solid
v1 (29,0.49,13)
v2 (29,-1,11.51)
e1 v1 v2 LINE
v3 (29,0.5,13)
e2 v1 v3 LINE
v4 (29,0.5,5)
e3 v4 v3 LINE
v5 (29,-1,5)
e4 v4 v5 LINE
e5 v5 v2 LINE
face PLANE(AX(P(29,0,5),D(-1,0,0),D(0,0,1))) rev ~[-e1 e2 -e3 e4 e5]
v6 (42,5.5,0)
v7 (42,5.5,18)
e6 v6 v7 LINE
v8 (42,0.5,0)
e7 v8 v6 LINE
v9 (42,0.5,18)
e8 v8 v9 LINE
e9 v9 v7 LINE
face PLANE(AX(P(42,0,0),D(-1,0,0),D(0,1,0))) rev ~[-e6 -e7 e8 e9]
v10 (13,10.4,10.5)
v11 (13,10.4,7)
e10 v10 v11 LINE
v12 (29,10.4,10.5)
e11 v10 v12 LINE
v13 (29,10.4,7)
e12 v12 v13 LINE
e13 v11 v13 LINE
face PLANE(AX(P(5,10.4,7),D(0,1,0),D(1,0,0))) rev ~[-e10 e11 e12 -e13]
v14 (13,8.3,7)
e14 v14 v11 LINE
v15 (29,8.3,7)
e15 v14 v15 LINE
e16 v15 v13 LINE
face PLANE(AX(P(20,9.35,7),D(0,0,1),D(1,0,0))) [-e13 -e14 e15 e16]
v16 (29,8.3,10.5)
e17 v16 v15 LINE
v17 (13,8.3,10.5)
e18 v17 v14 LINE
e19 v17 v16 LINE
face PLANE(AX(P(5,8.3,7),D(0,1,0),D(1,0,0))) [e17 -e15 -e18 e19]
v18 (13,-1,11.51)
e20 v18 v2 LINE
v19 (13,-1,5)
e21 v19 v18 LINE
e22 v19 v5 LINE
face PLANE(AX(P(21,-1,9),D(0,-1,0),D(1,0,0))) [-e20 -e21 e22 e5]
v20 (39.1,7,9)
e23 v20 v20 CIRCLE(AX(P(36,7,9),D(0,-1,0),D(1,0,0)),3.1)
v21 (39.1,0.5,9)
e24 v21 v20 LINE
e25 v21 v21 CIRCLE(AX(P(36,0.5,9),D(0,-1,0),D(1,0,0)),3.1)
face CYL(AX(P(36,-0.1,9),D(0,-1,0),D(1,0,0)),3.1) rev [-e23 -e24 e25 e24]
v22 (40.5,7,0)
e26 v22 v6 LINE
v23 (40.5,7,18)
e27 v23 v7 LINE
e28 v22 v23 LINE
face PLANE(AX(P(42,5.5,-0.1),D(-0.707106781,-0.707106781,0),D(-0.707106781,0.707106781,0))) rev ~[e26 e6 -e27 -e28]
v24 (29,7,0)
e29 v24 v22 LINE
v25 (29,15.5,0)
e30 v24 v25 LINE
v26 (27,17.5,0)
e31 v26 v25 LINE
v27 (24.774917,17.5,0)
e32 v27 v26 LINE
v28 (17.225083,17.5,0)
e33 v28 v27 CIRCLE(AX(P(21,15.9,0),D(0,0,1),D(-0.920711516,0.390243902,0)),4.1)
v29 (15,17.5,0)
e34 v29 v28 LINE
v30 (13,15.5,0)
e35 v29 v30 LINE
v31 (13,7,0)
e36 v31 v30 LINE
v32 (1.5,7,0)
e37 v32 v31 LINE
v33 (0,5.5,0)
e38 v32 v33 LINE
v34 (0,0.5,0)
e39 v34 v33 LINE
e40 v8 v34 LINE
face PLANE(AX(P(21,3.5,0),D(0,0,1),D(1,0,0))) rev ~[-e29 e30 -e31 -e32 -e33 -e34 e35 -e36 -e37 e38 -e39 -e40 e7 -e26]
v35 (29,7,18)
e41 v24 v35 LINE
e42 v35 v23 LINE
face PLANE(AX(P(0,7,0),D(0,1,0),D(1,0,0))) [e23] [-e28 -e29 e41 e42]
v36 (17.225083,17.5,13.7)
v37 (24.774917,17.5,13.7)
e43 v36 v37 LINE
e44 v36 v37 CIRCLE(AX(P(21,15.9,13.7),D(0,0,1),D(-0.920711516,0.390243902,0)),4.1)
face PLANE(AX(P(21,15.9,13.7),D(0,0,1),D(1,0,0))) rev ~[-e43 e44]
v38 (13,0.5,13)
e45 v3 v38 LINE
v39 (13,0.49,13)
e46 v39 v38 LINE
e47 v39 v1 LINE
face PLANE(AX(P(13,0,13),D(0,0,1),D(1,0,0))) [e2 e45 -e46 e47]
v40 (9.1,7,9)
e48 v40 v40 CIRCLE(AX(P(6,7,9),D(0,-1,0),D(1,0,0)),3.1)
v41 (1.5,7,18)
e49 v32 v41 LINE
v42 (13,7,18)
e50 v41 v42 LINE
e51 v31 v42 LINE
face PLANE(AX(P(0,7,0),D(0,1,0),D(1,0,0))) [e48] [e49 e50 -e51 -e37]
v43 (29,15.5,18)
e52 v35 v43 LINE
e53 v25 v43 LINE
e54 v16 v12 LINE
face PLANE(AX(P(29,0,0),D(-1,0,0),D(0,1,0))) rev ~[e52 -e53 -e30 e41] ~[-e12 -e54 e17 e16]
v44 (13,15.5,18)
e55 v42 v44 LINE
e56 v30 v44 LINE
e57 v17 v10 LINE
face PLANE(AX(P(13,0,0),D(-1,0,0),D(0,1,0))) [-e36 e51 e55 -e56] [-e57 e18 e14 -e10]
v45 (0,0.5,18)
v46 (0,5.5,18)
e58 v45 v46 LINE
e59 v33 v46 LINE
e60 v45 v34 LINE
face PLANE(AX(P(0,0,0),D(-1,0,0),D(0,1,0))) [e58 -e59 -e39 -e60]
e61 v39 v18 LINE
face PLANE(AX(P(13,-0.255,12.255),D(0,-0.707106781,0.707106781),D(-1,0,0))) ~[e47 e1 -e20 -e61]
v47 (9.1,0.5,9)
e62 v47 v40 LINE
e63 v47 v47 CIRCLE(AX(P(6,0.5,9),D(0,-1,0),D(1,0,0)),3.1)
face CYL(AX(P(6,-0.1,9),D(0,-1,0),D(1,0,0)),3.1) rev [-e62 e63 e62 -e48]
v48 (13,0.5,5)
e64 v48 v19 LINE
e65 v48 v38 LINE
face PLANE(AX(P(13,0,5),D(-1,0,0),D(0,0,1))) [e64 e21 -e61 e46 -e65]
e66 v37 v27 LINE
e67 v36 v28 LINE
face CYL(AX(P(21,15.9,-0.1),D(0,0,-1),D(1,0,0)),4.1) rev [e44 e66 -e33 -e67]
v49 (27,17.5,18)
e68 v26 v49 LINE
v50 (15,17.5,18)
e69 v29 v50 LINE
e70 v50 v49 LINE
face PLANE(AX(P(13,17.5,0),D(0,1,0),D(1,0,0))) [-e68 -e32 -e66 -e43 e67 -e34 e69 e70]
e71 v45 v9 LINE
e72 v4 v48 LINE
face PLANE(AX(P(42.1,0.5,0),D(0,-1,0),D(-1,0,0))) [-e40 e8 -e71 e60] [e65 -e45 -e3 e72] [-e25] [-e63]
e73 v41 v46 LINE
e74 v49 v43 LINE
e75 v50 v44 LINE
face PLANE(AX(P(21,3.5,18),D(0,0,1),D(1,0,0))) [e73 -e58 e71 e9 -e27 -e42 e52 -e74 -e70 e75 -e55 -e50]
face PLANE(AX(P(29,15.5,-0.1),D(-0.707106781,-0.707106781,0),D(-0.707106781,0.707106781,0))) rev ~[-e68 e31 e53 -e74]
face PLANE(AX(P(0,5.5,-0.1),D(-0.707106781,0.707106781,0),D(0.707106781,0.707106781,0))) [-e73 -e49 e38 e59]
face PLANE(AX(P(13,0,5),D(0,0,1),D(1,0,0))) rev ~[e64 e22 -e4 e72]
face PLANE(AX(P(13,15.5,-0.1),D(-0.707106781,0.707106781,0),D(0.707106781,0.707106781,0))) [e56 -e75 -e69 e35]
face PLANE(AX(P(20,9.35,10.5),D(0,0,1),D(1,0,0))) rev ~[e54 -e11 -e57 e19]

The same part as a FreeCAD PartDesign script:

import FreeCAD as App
import Part
import Sketcher

V = App.Vector
Q = App.Units.Quantity


def edges_at(feature, points):
    """Names of the edges that pass closest to the given points."""
    edges = feature.Shape.Edges
    near = lambda p: min(range(len(edges)), key=lambda i: edges[i].distToShape(Part.Vertex(*p))[0])
    return sorted({f"Edge{near(p) + 1}" for p in points})

doc = App.newDocument("Part")
body = doc.addObject("PartDesign::Body", "Body")

sketch1 = doc.addObject("Sketcher::SketchObject", "Sketch")
body.addObject(sketch1)
sketch1.AttachmentSupport = (doc.XY_Plane, [""])
sketch1.MapMode = "FlatFace"
sketch1.addGeometry([
    Part.LineSegment(V(42.1, -1.5, 0), V(42.1, 0.5, 0)),
    Part.LineSegment(V(42.1, 0.5, 0), V(-7.9, 0.5, 0)),
    Part.LineSegment(V(-7.9, 0.5, 0), V(-7.9, -1.5, 0)),
    Part.LineSegment(V(-7.9, -1.5, 0), V(42.1, -1.5, 0)),
], False)
sketch1.addConstraint([
    Sketcher.Constraint("Coincident", 0, 2, 1, 1),
    Sketcher.Constraint("Coincident", 1, 2, 2, 1),
    Sketcher.Constraint("Coincident", 2, 2, 3, 1),
    Sketcher.Constraint("Coincident", 3, 2, 0, 1),
    Sketcher.Constraint("Vertical", 0),
    Sketcher.Constraint("Horizontal", 1),
    Sketcher.Constraint("Vertical", 2),
    Sketcher.Constraint("Horizontal", 3),
    Sketcher.Constraint("DistanceX", 1, 2, 1, 1, Q("50 mm")),
    Sketcher.Constraint("DistanceY", 0, 1, 0, 2, Q("2 mm")),
    Sketcher.Constraint("DistanceX", -1, 1, 0, 2, Q("42.1 mm")),
    Sketcher.Constraint("DistanceY", -1, 1, 0, 2, Q("0.5 mm")),
])
pad1 = doc.addObject("PartDesign::Pad", "Pad")
body.addObject(pad1)
pad1.Profile = sketch1
pad1.Length = 5
body2 = doc.addObject("PartDesign::Body", "Body001")

sketch2 = doc.addObject("Sketcher::SketchObject", "Sketch001")
body2.addObject(sketch2)
sketch2.AttachmentSupport = (doc.getObject("XY_Plane001"), [""])
sketch2.MapMode = "FlatFace"
sketch2.AttachmentOffset = App.Placement(V(0, 0, -0.1), App.Rotation())
sketch2.addGeometry(Part.Circle(V(21, 15.9, 0), V(0, 0, 1), 4.1), False)
sketch2.addConstraint([
    Sketcher.Constraint("Diameter", 0, Q("8.2 mm")),
    Sketcher.Constraint("DistanceX", -1, 1, 0, 3, Q("21 mm")),
    Sketcher.Constraint("DistanceY", -1, 1, 0, 3, Q("15.9 mm")),
])
pad2 = doc.addObject("PartDesign::Pad", "Pad001")
body2.addObject(pad2)
pad2.Profile = sketch2
pad2.Length = 13.8
body3 = doc.addObject("PartDesign::Body", "Body002")

sketch3 = doc.addObject("Sketcher::SketchObject", "Sketch002")
body3.addObject(sketch3)
sketch3.AttachmentSupport = (doc.getObject("XY_Plane002"), [""])
sketch3.MapMode = "FlatFace"
sketch3.addGeometry([
    Part.LineSegment(V(0, 10, 0), V(0, 0, 0)),
    Part.LineSegment(V(0, 0, 0), V(10, 0, 0)),
    Part.LineSegment(V(10, 0, 0), V(10, 10, 0)),
    Part.LineSegment(V(10, 10, 0), V(0, 10, 0)),
], False)
sketch3.addConstraint([
    Sketcher.Constraint("Coincident", 0, 2, 1, 1),
    Sketcher.Constraint("Coincident", 1, 2, 2, 1),
    Sketcher.Constraint("Coincident", 2, 2, 3, 1),
    Sketcher.Constraint("Coincident", 3, 2, 0, 1),
    Sketcher.Constraint("Vertical", 0),
    Sketcher.Constraint("Horizontal", 1),
    Sketcher.Constraint("Vertical", 2),
    Sketcher.Constraint("Horizontal", 3),
    Sketcher.Constraint("Coincident", 0, 2, -1, 1),
    Sketcher.Constraint("Equal", 3, 0),
    Sketcher.Constraint("DistanceX", 1, 1, 1, 2, Q("10 mm")),
])
pad3 = doc.addObject("PartDesign::Pad", "Pad002")
body3.addObject(pad3)
pad3.Profile = sketch3
pad3.Length = 20
body4 = doc.addObject("PartDesign::Body", "Body003")
doc.recompute()

body3.Placement = App.Placement(V(13, 15.5, -0.1), App.Rotation(V(0, 0, 1), 45))
boolean = doc.addObject("PartDesign::Boolean", "Boolean")
body4.addObject(boolean)
boolean.Type = "Fuse"
boolean.addObjects([body3])
body5 = doc.addObject("PartDesign::Body", "Body004")

sketch4 = doc.addObject("Sketcher::SketchObject", "Sketch003")
body5.addObject(sketch4)
sketch4.AttachmentSupport = (doc.getObject("XY_Plane004"), [""])
sketch4.MapMode = "FlatFace"
sketch4.addGeometry([
    Part.LineSegment(V(0, 10, 0), V(0, 0, 0)),
    Part.LineSegment(V(0, 0, 0), V(10, 0, 0)),
    Part.LineSegment(V(10, 0, 0), V(10, 10, 0)),
    Part.LineSegment(V(10, 10, 0), V(0, 10, 0)),
], False)
sketch4.addConstraint([
    Sketcher.Constraint("Coincident", 0, 2, 1, 1),
    Sketcher.Constraint("Coincident", 1, 2, 2, 1),
    Sketcher.Constraint("Coincident", 2, 2, 3, 1),
    Sketcher.Constraint("Coincident", 3, 2, 0, 1),
    Sketcher.Constraint("Vertical", 0),
    Sketcher.Constraint("Horizontal", 1),
    Sketcher.Constraint("Vertical", 2),
    Sketcher.Constraint("Horizontal", 3),
    Sketcher.Constraint("Coincident", 0, 2, -1, 1),
    Sketcher.Constraint("Equal", 3, 0),
    Sketcher.Constraint("DistanceX", 1, 1, 1, 2, Q("10 mm")),
])
pad4 = doc.addObject("PartDesign::Pad", "Pad003")
body5.addObject(pad4)
pad4.Profile = sketch4
pad4.Length = 20
body6 = doc.addObject("PartDesign::Body", "Body005")
doc.recompute()

body5.Placement = App.Placement(V(29, 15.5, -0.1), App.Rotation(V(0, 0, 1), 45))
boolean2 = doc.addObject("PartDesign::Boolean", "Boolean001")
body6.addObject(boolean2)
boolean2.Type = "Fuse"
boolean2.addObjects([body5])
body7 = doc.addObject("PartDesign::Body", "Body006")

sketch5 = doc.addObject("Sketcher::SketchObject", "Sketch004")
body7.addObject(sketch5)
sketch5.AttachmentSupport = (doc.getObject("XY_Plane006"), [""])
sketch5.MapMode = "FlatFace"
sketch5.addGeometry([
    Part.LineSegment(V(0, 10, 0), V(0, 0, 0)),
    Part.LineSegment(V(0, 0, 0), V(10, 0, 0)),
    Part.LineSegment(V(10, 0, 0), V(10, 10, 0)),
    Part.LineSegment(V(10, 10, 0), V(0, 10, 0)),
], False)
sketch5.addConstraint([
    Sketcher.Constraint("Coincident", 0, 2, 1, 1),
    Sketcher.Constraint("Coincident", 1, 2, 2, 1),
    Sketcher.Constraint("Coincident", 2, 2, 3, 1),
    Sketcher.Constraint("Coincident", 3, 2, 0, 1),
    Sketcher.Constraint("Vertical", 0),
    Sketcher.Constraint("Horizontal", 1),
    Sketcher.Constraint("Vertical", 2),
    Sketcher.Constraint("Horizontal", 3),
    Sketcher.Constraint("Coincident", 0, 2, -1, 1),
    Sketcher.Constraint("Equal", 3, 0),
    Sketcher.Constraint("DistanceX", 1, 1, 1, 2, Q("10 mm")),
])
pad5 = doc.addObject("PartDesign::Pad", "Pad004")
body7.addObject(pad5)
pad5.Profile = sketch5
pad5.Length = 20
body8 = doc.addObject("PartDesign::Body", "Body007")
doc.recompute()

body7.Placement = App.Placement(V(0, 5.5, -0.1), App.Rotation(V(0, 0, 1), 45))
boolean3 = doc.addObject("PartDesign::Boolean", "Boolean002")
body8.addObject(boolean3)
boolean3.Type = "Fuse"
boolean3.addObjects([body7])
body9 = doc.addObject("PartDesign::Body", "Body008")

sketch6 = doc.addObject("Sketcher::SketchObject", "Sketch005")
body9.addObject(sketch6)
sketch6.AttachmentSupport = (doc.getObject("XY_Plane008"), [""])
sketch6.MapMode = "FlatFace"
sketch6.addGeometry([
    Part.LineSegment(V(0, 10, 0), V(0, 0, 0)),
    Part.LineSegment(V(0, 0, 0), V(10, 0, 0)),
    Part.LineSegment(V(10, 0, 0), V(10, 10, 0)),
    Part.LineSegment(V(10, 10, 0), V(0, 10, 0)),
], False)
sketch6.addConstraint([
    Sketcher.Constraint("Coincident", 0, 2, 1, 1),
    Sketcher.Constraint("Coincident", 1, 2, 2, 1),
    Sketcher.Constraint("Coincident", 2, 2, 3, 1),
    Sketcher.Constraint("Coincident", 3, 2, 0, 1),
    Sketcher.Constraint("Vertical", 0),
    Sketcher.Constraint("Horizontal", 1),
    Sketcher.Constraint("Vertical", 2),
    Sketcher.Constraint("Horizontal", 3),
    Sketcher.Constraint("Coincident", 0, 2, -1, 1),
    Sketcher.Constraint("Equal", 3, 0),
    Sketcher.Constraint("DistanceX", 1, 1, 1, 2, Q("10 mm")),
])
pad6 = doc.addObject("PartDesign::Pad", "Pad005")
body9.addObject(pad6)
pad6.Profile = sketch6
pad6.Length = 20
body10 = doc.addObject("PartDesign::Body", "Body009")
doc.recompute()

body9.Placement = App.Placement(V(42, 5.5, -0.1), App.Rotation(V(0, 0, 1), 45))
boolean4 = doc.addObject("PartDesign::Boolean", "Boolean003")
body10.addObject(boolean4)
boolean4.Type = "Fuse"
boolean4.addObjects([body9])
body11 = doc.addObject("PartDesign::Body", "Body010")

sketch7 = doc.addObject("Sketcher::SketchObject", "Sketch006")
body11.addObject(sketch7)
sketch7.AttachmentSupport = (doc.getObject("XZ_Plane010"), [""])
sketch7.MapMode = "FlatFace"
sketch7.AttachmentOffset = App.Placement(V(0, 0, 0.1), App.Rotation())
sketch7.addGeometry(Part.Circle(V(6, 9, 0), V(0, 0, 1), 3.1), False)
sketch7.addConstraint([
    Sketcher.Constraint("Diameter", 0, Q("6.2 mm")),
    Sketcher.Constraint("DistanceX", -1, 1, 0, 3, Q("6 mm")),
    Sketcher.Constraint("DistanceY", -1, 1, 0, 3, Q("9 mm")),
])
pad7 = doc.addObject("PartDesign::Pad", "Pad006")
body11.addObject(pad7)
pad7.Profile = sketch7
pad7.Length = 10
pad7.Reversed = True
body12 = doc.addObject("PartDesign::Body", "Body011")

sketch8 = doc.addObject("Sketcher::SketchObject", "Sketch007")
body12.addObject(sketch8)
sketch8.AttachmentSupport = (doc.getObject("XZ_Plane011"), [""])
sketch8.MapMode = "FlatFace"
sketch8.AttachmentOffset = App.Placement(V(0, 0, 0.1), App.Rotation())
sketch8.addGeometry(Part.Circle(V(36, 9, 0), V(0, 0, 1), 3.1), False)
sketch8.addConstraint([
    Sketcher.Constraint("Diameter", 0, Q("6.2 mm")),
    Sketcher.Constraint("DistanceX", -1, 1, 0, 3, Q("36 mm")),
    Sketcher.Constraint("DistanceY", -1, 1, 0, 3, Q("9 mm")),
])
pad8 = doc.addObject("PartDesign::Pad", "Pad007")
body12.addObject(pad8)
pad8.Profile = sketch8
pad8.Length = 10
pad8.Reversed = True
body13 = doc.addObject("PartDesign::Body", "Body012")

sketch9 = doc.addObject("Sketcher::SketchObject", "Sketch008")
body13.addObject(sketch9)
sketch9.AttachmentSupport = (doc.getObject("XY_Plane012"), [""])
sketch9.MapMode = "FlatFace"
sketch9.AttachmentOffset = App.Placement(V(0, 0, 7), App.Rotation())
sketch9.addGeometry([
    Part.LineSegment(V(5, 10.4, 0), V(5, 8.3, 0)),
    Part.LineSegment(V(5, 8.3, 0), V(35, 8.3, 0)),
    Part.LineSegment(V(35, 8.3, 0), V(35, 10.4, 0)),
    Part.LineSegment(V(35, 10.4, 0), V(5, 10.4, 0)),
], False)
sketch9.addConstraint([
    Sketcher.Constraint("Coincident", 0, 2, 1, 1),
    Sketcher.Constraint("Coincident", 1, 2, 2, 1),
    Sketcher.Constraint("Coincident", 2, 2, 3, 1),
    Sketcher.Constraint("Coincident", 3, 2, 0, 1),
    Sketcher.Constraint("Vertical", 0),
    Sketcher.Constraint("Horizontal", 1),
    Sketcher.Constraint("Vertical", 2),
    Sketcher.Constraint("Horizontal", 3),
    Sketcher.Constraint("DistanceX", 1, 1, 1, 2, Q("30 mm")),
    Sketcher.Constraint("DistanceY", 0, 2, 0, 1, Q("2.1 mm")),
    Sketcher.Constraint("DistanceX", -1, 1, 0, 2, Q("5 mm")),
    Sketcher.Constraint("DistanceY", -1, 1, 0, 2, Q("8.3 mm")),
])
pad9 = doc.addObject("PartDesign::Pad", "Pad008")
body13.addObject(pad9)
pad9.Profile = sketch9
pad9.Length = 3.5
body14 = doc.addObject("PartDesign::Body", "Body013")
body14.AllowCompound = True

sketch10 = doc.addObject("Sketcher::SketchObject", "Sketch009")
body14.addObject(sketch10)
sketch10.AttachmentSupport = (doc.getObject("XY_Plane013"), [""])
sketch10.MapMode = "FlatFace"
sketch10.AttachmentOffset = App.Placement(V(0, 0, 13), App.Rotation())
sketch10.addGeometry([
    Part.LineSegment(V(42.1, -1.5, 0), V(42.1, 0.5, 0)),
    Part.LineSegment(V(42.1, 0.5, 0), V(-7.9, 0.5, 0)),
    Part.LineSegment(V(-7.9, 0.5, 0), V(-7.9, -1.5, 0)),
    Part.LineSegment(V(-7.9, -1.5, 0), V(42.1, -1.5, 0)),
], False)
sketch10.addConstraint([
    Sketcher.Constraint("Coincident", 0, 2, 1, 1),
    Sketcher.Constraint("Coincident", 1, 2, 2, 1),
    Sketcher.Constraint("Coincident", 2, 2, 3, 1),
    Sketcher.Constraint("Coincident", 3, 2, 0, 1),
    Sketcher.Constraint("Vertical", 0),
    Sketcher.Constraint("Horizontal", 1),
    Sketcher.Constraint("Vertical", 2),
    Sketcher.Constraint("Horizontal", 3),
    Sketcher.Constraint("DistanceX", 1, 2, 1, 1, Q("50 mm")),
    Sketcher.Constraint("DistanceY", 0, 1, 0, 2, Q("2 mm")),
    Sketcher.Constraint("DistanceX", -1, 1, 0, 2, Q("42.1 mm")),
    Sketcher.Constraint("DistanceY", -1, 1, 0, 2, Q("0.5 mm")),
])
pad10 = doc.addObject("PartDesign::Pad", "Pad009")
body14.addObject(pad10)
pad10.Profile = sketch10
pad10.Length = 10
doc.recompute()

boolean5 = doc.addObject("PartDesign::Boolean", "Boolean004")
body14.addObject(boolean5)
boolean5.Type = "Fuse"
boolean5.addObjects([body])
doc.recompute()

boolean6 = doc.addObject("PartDesign::Boolean", "Boolean005")
body14.addObject(boolean6)
boolean6.Type = "Fuse"
boolean6.addObjects([body2])
doc.recompute()

boolean7 = doc.addObject("PartDesign::Boolean", "Boolean006")
body14.addObject(boolean7)
boolean7.Type = "Fuse"
boolean7.addObjects([body4])
doc.recompute()

boolean8 = doc.addObject("PartDesign::Boolean", "Boolean007")
body14.addObject(boolean8)
boolean8.Type = "Fuse"
boolean8.addObjects([body6])
doc.recompute()

boolean9 = doc.addObject("PartDesign::Boolean", "Boolean008")
body14.addObject(boolean9)
boolean9.Type = "Fuse"
boolean9.addObjects([body8])
doc.recompute()

boolean10 = doc.addObject("PartDesign::Boolean", "Boolean009")
body14.addObject(boolean10)
boolean10.Type = "Fuse"
boolean10.addObjects([body10])
doc.recompute()

boolean11 = doc.addObject("PartDesign::Boolean", "Boolean010")
body14.addObject(boolean11)
boolean11.Type = "Fuse"
boolean11.addObjects([body11])
doc.recompute()

boolean12 = doc.addObject("PartDesign::Boolean", "Boolean011")
body14.addObject(boolean12)
boolean12.Type = "Fuse"
boolean12.addObjects([body12])
doc.recompute()

boolean13 = doc.addObject("PartDesign::Boolean", "Boolean012")
body14.addObject(boolean13)
boolean13.Type = "Fuse"
boolean13.addObjects([body13])
body15 = doc.addObject("PartDesign::Body", "Body014")

sketch11 = doc.addObject("Sketcher::SketchObject", "Sketch010")
body15.addObject(sketch11)
sketch11.AttachmentSupport = (doc.getObject("XY_Plane014"), [""])
sketch11.MapMode = "FlatFace"
sketch11.addGeometry([
    Part.LineSegment(V(13, 18, 0), V(13, 0, 0)),
    Part.LineSegment(V(13, 0, 0), V(29, 0, 0)),
    Part.LineSegment(V(29, 0, 0), V(29, 18, 0)),
    Part.LineSegment(V(29, 18, 0), V(13, 18, 0)),
], False)
sketch11.addConstraint([
    Sketcher.Constraint("Coincident", 0, 2, 1, 1),
    Sketcher.Constraint("Coincident", 1, 2, 2, 1),
    Sketcher.Constraint("Coincident", 2, 2, 3, 1),
    Sketcher.Constraint("Coincident", 3, 2, 0, 1),
    Sketcher.Constraint("Vertical", 0),
    Sketcher.Constraint("Horizontal", 1),
    Sketcher.Constraint("Vertical", 2),
    Sketcher.Constraint("Horizontal", 3),
    Sketcher.Constraint("PointOnObject", 0, 2, -1),
    Sketcher.Constraint("DistanceX", 1, 1, 1, 2, Q("16 mm")),
    Sketcher.Constraint("DistanceY", 0, 2, 0, 1, Q("17.5 mm")),
    Sketcher.Constraint("DistanceX", -1, 1, 0, 2, Q("13 mm")),
])
pad11 = doc.addObject("PartDesign::Pad", "Pad010")
body15.addObject(pad11)
pad11.Profile = sketch11
pad11.Length = 18
body16 = doc.addObject("PartDesign::Body", "Body015")

sketch12 = doc.addObject("Sketcher::SketchObject", "Sketch011")
body16.addObject(sketch12)
sketch12.AttachmentSupport = (doc.getObject("XY_Plane015"), [""])
sketch12.MapMode = "FlatFace"
sketch12.addGeometry([
    Part.LineSegment(V(0, 7, 0), V(0, 0, 0)),
    Part.LineSegment(V(0, 0, 0), V(42, 0, 0)),
    Part.LineSegment(V(42, 0, 0), V(42, 7, 0)),
    Part.LineSegment(V(42, 7, 0), V(0, 7, 0)),
], False)
sketch12.addConstraint([
    Sketcher.Constraint("Coincident", 0, 2, 1, 1),
    Sketcher.Constraint("Coincident", 1, 2, 2, 1),
    Sketcher.Constraint("Coincident", 2, 2, 3, 1),
    Sketcher.Constraint("Coincident", 3, 2, 0, 1),
    Sketcher.Constraint("Vertical", 0),
    Sketcher.Constraint("Horizontal", 1),
    Sketcher.Constraint("Vertical", 2),
    Sketcher.Constraint("Horizontal", 3),
    Sketcher.Constraint("Coincident", 0, 2, -1, 1),
    Sketcher.Constraint("DistanceX", 1, 1, 1, 2, Q("42 mm")),
    Sketcher.Constraint("DistanceY", 0, 2, 0, 1, Q("7 mm")),
])
pad12 = doc.addObject("PartDesign::Pad", "Pad011")
body16.addObject(pad12)
pad12.Profile = sketch12
pad12.Length = 18
doc.recompute()

boolean14 = doc.addObject("PartDesign::Boolean", "Boolean013")
body16.addObject(boolean14)
boolean14.Type = "Fuse"
boolean14.addObjects([body15])
doc.recompute()

boolean15 = doc.addObject("PartDesign::Boolean", "Boolean014")
body16.addObject(boolean15)
boolean15.Type = "Cut"
boolean15.addObjects([body14])
body17 = doc.addObject("PartDesign::Body", "Body016")
doc.recompute()

body16.Placement = App.Placement(V(0, 0, 18), App.Rotation(V(0, 1, 0), 180))
boolean16 = doc.addObject("PartDesign::Boolean", "Boolean015")
body17.addObject(boolean16)
boolean16.Type = "Fuse"
boolean16.addObjects([body16])
body18 = doc.addObject("PartDesign::Body", "Body017")
doc.recompute()

body17.Placement = App.Placement(V(0, 0, 18), App.Rotation(V(0, -1, 0), 180))
boolean17 = doc.addObject("PartDesign::Boolean", "Boolean016")
body18.addObject(boolean17)
boolean17.Type = "Fuse"
boolean17.addObjects([body17])

sketch13 = doc.addObject("Sketcher::SketchObject", "Sketch012")
body18.addObject(sketch13)
sketch13.AttachmentSupport = (doc.getObject("XZ_Plane017"), [""])
sketch13.MapMode = "FlatFace"
sketch13.addGeometry([
    Part.LineSegment(V(0, 13, 0), V(0, 5, 0)),
    Part.LineSegment(V(0, 5, 0), V(13, 5, 0)),
    Part.LineSegment(V(13, 5, 0), V(13, 13, 0)),
    Part.LineSegment(V(13, 13, 0), V(0, 13, 0)),
    Part.LineSegment(V(29, 13, 0), V(29, 5, 0)),
    Part.LineSegment(V(29, 5, 0), V(42, 5, 0)),
    Part.LineSegment(V(42, 5, 0), V(42, 13, 0)),
    Part.LineSegment(V(42, 13, 0), V(29, 13, 0)),
], False)
sketch13.addConstraint([
    Sketcher.Constraint("Coincident", 0, 2, 1, 1),
    Sketcher.Constraint("Coincident", 1, 2, 2, 1),
    Sketcher.Constraint("Coincident", 2, 2, 3, 1),
    Sketcher.Constraint("Coincident", 3, 2, 0, 1),
    Sketcher.Constraint("Coincident", 4, 2, 5, 1),
    Sketcher.Constraint("Coincident", 5, 2, 6, 1),
    Sketcher.Constraint("Coincident", 6, 2, 7, 1),
    Sketcher.Constraint("Coincident", 7, 2, 4, 1),
    Sketcher.Constraint("Vertical", 0),
    Sketcher.Constraint("Horizontal", 1),
    Sketcher.Constraint("Vertical", 2),
    Sketcher.Constraint("Horizontal", 3),
    Sketcher.Constraint("Vertical", 4),
    Sketcher.Constraint("Horizontal", 5),
    Sketcher.Constraint("Vertical", 6),
    Sketcher.Constraint("Horizontal", 7),
    Sketcher.Constraint("PointOnObject", 0, 2, -2),
    Sketcher.Constraint("Horizontal", 1, 2, 4, 2),
    Sketcher.Constraint("Horizontal", 3, 2, 6, 2),
    Sketcher.Constraint("Equal", 3, 5),
    Sketcher.Constraint("DistanceX", 1, 1, 1, 2, Q("13 mm")),
    Sketcher.Constraint("DistanceY", 0, 2, 0, 1, Q("8 mm")),
    Sketcher.Constraint("DistanceY", -1, 1, 0, 2, Q("5 mm")),
    Sketcher.Constraint("DistanceX", -1, 1, 4, 2, Q("29 mm")),
])
pocket1 = doc.addObject("PartDesign::Pocket", "Pocket")
body18.addObject(pocket1)
pocket1.Profile = sketch13
pocket1.Length = 0.5

sketch14 = doc.addObject("Sketcher::SketchObject", "Sketch013")
body18.addObject(sketch14)
sketch14.AttachmentSupport = (doc.getObject("XZ_Plane017"), [""])
sketch14.MapMode = "FlatFace"
sketch14.addGeometry([
    Part.LineSegment(V(13, 13, 0), V(13, 5, 0)),
    Part.LineSegment(V(13, 5, 0), V(29, 5, 0)),
    Part.LineSegment(V(29, 5, 0), V(29, 13, 0)),
    Part.LineSegment(V(29, 13, 0), V(13, 13, 0)),
], False)
sketch14.addConstraint([
    Sketcher.Constraint("Coincident", 0, 2, 1, 1),
    Sketcher.Constraint("Coincident", 1, 2, 2, 1),
    Sketcher.Constraint("Coincident", 2, 2, 3, 1),
    Sketcher.Constraint("Coincident", 3, 2, 0, 1),
    Sketcher.Constraint("Vertical", 0),
    Sketcher.Constraint("Horizontal", 1),
    Sketcher.Constraint("Vertical", 2),
    Sketcher.Constraint("Horizontal", 3),
    Sketcher.Constraint("DistanceX", 1, 1, 1, 2, Q("16 mm")),
    Sketcher.Constraint("DistanceY", 0, 2, 0, 1, Q("8 mm")),
    Sketcher.Constraint("DistanceX", -1, 1, 0, 2, Q("13 mm")),
    Sketcher.Constraint("DistanceY", -1, 1, 0, 2, Q("5 mm")),
])
pad13 = doc.addObject("PartDesign::Pad", "Pad012")
body18.addObject(pad13)
pad13.Profile = sketch14
pad13.Length = 1
doc.recompute()

chamfer = doc.addObject("PartDesign::Chamfer", "Chamfer")
body18.addObject(chamfer)
chamfer.Base = (pad13, edges_at(pad13, [(21, -1, 13)]))
chamfer.Size = 1.49

doc.recompute()
